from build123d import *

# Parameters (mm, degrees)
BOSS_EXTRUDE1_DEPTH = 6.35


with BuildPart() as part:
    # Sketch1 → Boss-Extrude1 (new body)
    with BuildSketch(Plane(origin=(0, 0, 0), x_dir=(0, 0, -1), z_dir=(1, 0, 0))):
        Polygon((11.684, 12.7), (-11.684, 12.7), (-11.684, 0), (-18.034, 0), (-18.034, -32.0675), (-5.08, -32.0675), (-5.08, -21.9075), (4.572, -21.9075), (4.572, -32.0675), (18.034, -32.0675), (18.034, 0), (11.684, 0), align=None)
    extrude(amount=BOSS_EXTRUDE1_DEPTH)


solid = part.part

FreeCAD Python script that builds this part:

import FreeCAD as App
import Part
import Sketcher

V = App.Vector
Q = App.Units.Quantity


def add_polygon(sketch, points):
    """Adds a closed chain of lines whose ends are joined by coincident constraints."""
    first, n = sketch.GeometryCount, len(points)
    for a, b in zip(points, points[1:] + points[:1]):
        sketch.addGeometry(Part.LineSegment(App.Vector(*a, 0), App.Vector(*b, 0)), False)
    for i in range(n):
        sketch.addConstraint(Sketcher.Constraint("Coincident", first + i, 2, first + (i + 1) % n, 1))

doc = App.newDocument("Part")
body = doc.addObject("PartDesign::Body", "Body")

sketch1 = body.newObject("Sketcher::SketchObject", "Sketch")
sketch1.AttachmentSupport = (doc.getObject("YZ_Plane"), [""])
sketch1.MapMode = "FlatFace"
add_polygon(sketch1, [(13, -12), (13, 12), (0, 12), (0, 18), (-32, 18), (-32, 5), (-22, 5), (-22, -5), (-32, -5), (-32, -18), (0, -18), (0, -12)])
sketch1.addConstraint([
    Sketcher.Constraint("Vertical", 0),
    Sketcher.Constraint("Horizontal", 1),
    Sketcher.Constraint("Vertical", 2),
    Sketcher.Constraint("Horizontal", 3),
    Sketcher.Constraint("Vertical", 4),
    Sketcher.Constraint("Horizontal", 5),
    Sketcher.Constraint("Vertical", 6),
    Sketcher.Constraint("Horizontal", 7),
    Sketcher.Constraint("Vertical", 8),
    Sketcher.Constraint("Horizontal", 9),
    Sketcher.Constraint("Vertical", 10),
    Sketcher.Constraint("Horizontal", 11),
    Sketcher.Constraint("Symmetric", 2, 2, 9, 2, -1, 1),
    Sketcher.Constraint("Symmetric", 1, 2, 10, 2, -1),
    Sketcher.Constraint("Vertical", 4, 2, 7, 2),
    Sketcher.Constraint("DistanceX", 1, 2, 1, 1, Q("0.5 in")),
    Sketcher.Constraint("DistanceX", 5, 1, 5, 2, Q("0.4 in")),
    Sketcher.Constraint("DistanceY", 0, 1, 0, 2, Q("0.92 in")),
    Sketcher.Constraint("DistanceY", 2, 1, 2, 2, Q("0.25 in")),
    Sketcher.Constraint("DistanceY", 4, 2, 4, 1, Q("0.51 in")),
    Sketcher.Constraint("DistanceY", 6, 2, 6, 1, Q("0.38 in")),
    Sketcher.Constraint("DistanceX", 3, 2, 3, 1, Q("1.2625 in")),
])
pad1 = body.newObject("PartDesign::Pad", "Pad")
pad1.Profile = sketch1
pad1.Length = Q("0.25 in")

doc.recompute()
